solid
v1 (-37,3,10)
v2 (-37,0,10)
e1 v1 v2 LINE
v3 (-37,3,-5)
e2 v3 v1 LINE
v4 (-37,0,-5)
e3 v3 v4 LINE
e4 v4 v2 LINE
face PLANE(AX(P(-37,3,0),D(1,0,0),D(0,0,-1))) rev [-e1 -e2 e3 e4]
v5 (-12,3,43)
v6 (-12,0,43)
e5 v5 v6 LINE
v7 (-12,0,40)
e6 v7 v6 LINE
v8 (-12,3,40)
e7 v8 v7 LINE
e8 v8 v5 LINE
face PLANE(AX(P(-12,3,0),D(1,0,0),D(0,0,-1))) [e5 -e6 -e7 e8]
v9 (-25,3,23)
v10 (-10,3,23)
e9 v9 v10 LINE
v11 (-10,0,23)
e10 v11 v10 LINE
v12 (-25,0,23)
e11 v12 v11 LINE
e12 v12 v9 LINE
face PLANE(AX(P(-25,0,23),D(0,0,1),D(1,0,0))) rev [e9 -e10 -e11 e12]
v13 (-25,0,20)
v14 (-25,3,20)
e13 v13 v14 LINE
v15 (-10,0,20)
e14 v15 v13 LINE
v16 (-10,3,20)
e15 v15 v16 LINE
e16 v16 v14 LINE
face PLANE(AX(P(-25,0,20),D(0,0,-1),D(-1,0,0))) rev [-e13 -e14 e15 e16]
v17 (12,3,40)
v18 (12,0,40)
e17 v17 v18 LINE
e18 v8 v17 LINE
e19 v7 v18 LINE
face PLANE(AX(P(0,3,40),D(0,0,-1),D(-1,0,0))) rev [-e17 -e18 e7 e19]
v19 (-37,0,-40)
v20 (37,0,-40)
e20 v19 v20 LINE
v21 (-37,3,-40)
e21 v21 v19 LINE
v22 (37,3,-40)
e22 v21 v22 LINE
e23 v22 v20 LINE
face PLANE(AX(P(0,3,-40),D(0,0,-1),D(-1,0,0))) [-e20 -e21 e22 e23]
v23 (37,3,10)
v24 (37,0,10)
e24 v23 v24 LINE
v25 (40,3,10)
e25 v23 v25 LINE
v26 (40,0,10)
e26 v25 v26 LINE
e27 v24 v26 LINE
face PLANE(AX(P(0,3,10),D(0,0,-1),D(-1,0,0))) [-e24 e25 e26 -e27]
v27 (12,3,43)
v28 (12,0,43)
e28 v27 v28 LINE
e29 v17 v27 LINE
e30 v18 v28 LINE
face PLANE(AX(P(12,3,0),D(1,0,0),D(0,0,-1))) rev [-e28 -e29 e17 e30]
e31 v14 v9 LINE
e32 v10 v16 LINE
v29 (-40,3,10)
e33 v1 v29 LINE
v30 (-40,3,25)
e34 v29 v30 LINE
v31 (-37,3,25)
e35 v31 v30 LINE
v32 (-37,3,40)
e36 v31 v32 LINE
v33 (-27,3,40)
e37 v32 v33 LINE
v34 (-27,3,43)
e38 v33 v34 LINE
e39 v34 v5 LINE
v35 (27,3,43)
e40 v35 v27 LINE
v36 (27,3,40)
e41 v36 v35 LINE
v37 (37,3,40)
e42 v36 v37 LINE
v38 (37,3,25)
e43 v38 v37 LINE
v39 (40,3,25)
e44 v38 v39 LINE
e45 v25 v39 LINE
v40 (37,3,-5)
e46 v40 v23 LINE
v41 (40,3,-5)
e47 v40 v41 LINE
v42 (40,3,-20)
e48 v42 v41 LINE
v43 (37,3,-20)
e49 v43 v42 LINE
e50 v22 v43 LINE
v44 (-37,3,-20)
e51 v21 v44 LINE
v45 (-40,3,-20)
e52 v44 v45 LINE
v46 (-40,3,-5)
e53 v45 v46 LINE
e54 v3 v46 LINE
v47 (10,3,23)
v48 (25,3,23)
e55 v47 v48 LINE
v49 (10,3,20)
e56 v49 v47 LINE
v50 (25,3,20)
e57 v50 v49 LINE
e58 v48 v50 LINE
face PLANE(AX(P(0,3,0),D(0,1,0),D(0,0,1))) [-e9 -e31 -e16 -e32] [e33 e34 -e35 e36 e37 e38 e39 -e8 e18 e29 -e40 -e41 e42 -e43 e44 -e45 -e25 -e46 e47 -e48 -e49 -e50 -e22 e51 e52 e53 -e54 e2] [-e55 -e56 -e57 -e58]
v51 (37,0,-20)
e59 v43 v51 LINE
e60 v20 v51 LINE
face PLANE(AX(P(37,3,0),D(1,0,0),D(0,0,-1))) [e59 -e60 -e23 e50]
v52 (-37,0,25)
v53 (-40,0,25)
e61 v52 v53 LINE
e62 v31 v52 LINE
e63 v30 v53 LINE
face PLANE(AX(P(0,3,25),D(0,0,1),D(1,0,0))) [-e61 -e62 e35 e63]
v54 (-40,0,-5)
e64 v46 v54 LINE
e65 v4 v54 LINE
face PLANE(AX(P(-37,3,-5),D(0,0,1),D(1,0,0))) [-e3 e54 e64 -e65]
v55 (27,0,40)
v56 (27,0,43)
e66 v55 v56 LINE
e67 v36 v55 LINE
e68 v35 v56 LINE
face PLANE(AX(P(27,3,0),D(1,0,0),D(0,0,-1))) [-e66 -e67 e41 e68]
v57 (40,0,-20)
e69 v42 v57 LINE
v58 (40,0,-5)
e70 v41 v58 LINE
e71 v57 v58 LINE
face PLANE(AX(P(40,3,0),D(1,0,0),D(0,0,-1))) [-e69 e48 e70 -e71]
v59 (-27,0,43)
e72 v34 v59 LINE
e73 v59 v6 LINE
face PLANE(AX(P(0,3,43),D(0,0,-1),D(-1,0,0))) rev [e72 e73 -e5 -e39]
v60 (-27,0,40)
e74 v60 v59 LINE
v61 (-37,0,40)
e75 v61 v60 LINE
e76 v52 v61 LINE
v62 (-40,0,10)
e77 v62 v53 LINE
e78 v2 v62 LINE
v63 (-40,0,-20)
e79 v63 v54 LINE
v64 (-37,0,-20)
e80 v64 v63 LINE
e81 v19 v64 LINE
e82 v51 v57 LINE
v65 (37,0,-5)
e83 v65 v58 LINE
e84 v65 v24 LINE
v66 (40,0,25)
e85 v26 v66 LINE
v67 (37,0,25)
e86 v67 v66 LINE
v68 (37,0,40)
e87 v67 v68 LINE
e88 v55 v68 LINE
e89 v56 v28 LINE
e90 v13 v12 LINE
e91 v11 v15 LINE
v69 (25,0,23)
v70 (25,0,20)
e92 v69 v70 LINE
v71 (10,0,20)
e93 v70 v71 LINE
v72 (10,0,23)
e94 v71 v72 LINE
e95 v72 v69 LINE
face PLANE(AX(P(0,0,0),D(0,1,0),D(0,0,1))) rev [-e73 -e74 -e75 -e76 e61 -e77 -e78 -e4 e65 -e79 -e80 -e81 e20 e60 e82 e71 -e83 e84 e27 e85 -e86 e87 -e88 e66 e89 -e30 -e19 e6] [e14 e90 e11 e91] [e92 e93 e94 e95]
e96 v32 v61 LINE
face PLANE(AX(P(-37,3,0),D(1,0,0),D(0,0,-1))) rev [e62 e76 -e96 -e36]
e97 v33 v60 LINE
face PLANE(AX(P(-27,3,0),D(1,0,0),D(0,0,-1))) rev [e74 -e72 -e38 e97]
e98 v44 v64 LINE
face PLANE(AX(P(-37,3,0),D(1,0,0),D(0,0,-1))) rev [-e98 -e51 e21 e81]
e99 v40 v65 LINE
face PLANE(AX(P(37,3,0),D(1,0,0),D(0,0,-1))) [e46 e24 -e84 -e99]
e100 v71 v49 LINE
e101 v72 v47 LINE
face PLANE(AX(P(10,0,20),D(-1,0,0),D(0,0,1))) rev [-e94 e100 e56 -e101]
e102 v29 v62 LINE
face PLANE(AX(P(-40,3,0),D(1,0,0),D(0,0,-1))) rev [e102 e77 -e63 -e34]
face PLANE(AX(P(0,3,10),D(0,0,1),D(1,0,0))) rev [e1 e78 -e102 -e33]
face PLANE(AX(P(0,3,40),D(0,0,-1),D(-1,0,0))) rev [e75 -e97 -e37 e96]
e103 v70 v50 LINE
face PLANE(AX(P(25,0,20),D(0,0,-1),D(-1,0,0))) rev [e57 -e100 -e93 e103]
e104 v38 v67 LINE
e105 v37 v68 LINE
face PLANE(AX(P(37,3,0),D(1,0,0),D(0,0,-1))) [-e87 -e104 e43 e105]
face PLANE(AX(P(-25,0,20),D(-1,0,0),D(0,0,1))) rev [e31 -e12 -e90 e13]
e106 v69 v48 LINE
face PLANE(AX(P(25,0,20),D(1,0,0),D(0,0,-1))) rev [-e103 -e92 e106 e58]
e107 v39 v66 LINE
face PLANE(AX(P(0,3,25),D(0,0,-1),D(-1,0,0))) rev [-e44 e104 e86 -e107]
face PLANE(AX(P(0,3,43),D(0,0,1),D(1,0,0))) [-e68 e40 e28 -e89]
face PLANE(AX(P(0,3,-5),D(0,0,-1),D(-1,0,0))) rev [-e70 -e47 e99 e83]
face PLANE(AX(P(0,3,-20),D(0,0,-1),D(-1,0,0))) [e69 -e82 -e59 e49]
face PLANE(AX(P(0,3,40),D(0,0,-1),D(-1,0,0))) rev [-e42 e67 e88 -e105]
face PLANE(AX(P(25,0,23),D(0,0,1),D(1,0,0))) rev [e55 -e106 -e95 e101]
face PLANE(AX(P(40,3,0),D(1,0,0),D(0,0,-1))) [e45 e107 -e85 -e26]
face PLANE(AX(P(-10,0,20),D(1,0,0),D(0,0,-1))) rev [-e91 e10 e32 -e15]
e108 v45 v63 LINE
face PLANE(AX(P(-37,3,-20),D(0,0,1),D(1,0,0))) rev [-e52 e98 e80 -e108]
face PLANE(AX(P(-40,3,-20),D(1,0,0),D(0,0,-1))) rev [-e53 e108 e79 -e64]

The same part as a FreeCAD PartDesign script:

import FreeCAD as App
import Part
import Sketcher
from FreeCAD import Vector
Q = App.Units.Quantity


def add_polygon(sketch, points):
    """Adds a closed chain of lines whose ends are joined by coincident constraints."""
    first, n = sketch.GeometryCount, len(points)
    for a, b in zip(points, points[1:] + points[:1]):
        sketch.addGeometry(Part.LineSegment(App.Vector(*a, 0), App.Vector(*b, 0)), False)
    for i in range(n):
        sketch.addConstraint(Sketcher.Constraint("Coincident", first + i, 2, first + (i + 1) % n, 1))

doc = App.newDocument("Part")
body = doc.addObject("PartDesign::Body", "Body")

# Sketch on XZ plane
sketch1 = body.newObject("Sketcher::SketchObject", "Sketch")
sketch1.AttachmentSupport = (doc.getObject("XZ_Plane"), [""])
sketch1.MapMode = "FlatFace"
add_polygon(sketch1, [(-37, 25), (-37, 40), (-27, 40), (-27, 43), (-12, 43), (-12, 40), (12, 40), (12, 43), (27, 43), (27, 40), (37, 40), (37, 25), (40, 25), (40, 10), (37, 10), (37, -5), (40, -5), (40, -20), (37, -20), (37, -40), (-37, -40), (-37, -20), (-40, -20), (-40, -5), (-37, -5), (-37, 10), (-40, 10), (-40, 25)])  # lines 0-27
sketch1.addConstraint([
    Sketcher.Constraint("Vertical", 0),
    Sketcher.Constraint("Horizontal", 1),
    Sketcher.Constraint("Vertical", 2),
    Sketcher.Constraint("Horizontal", 3),
    Sketcher.Constraint("Vertical", 4),
    Sketcher.Constraint("Horizontal", 5),
    Sketcher.Constraint("Vertical", 6),
    Sketcher.Constraint("Horizontal", 7),
    Sketcher.Constraint("Vertical", 8),
    Sketcher.Constraint("Horizontal", 9),
    Sketcher.Constraint("Vertical", 10),
    Sketcher.Constraint("Horizontal", 11),
    Sketcher.Constraint("Vertical", 12),
    Sketcher.Constraint("Horizontal", 13),
    Sketcher.Constraint("Vertical", 14),
    Sketcher.Constraint("Horizontal", 15),
    Sketcher.Constraint("Vertical", 16),
    Sketcher.Constraint("Horizontal", 17),
    Sketcher.Constraint("Vertical", 18),
    Sketcher.Constraint("Horizontal", 19),
    Sketcher.Constraint("Vertical", 20),
    Sketcher.Constraint("Horizontal", 21),
    Sketcher.Constraint("Vertical", 22),
    Sketcher.Constraint("Horizontal", 23),
    Sketcher.Constraint("Vertical", 24),
    Sketcher.Constraint("Horizontal", 25),
    Sketcher.Constraint("Vertical", 26),
    Sketcher.Constraint("Horizontal", 27),
    Sketcher.Constraint("Symmetric", 0, 2, 18, 2, -1, 1),
    Sketcher.Constraint("Symmetric", 9, 2, 19, 2, -1, 1),
    Sketcher.Constraint("Symmetric", 3, 2, 6, 2, -2),
    Sketcher.Constraint("Symmetric", 17, 2, 20, 2, -2),
    Sketcher.Constraint("Symmetric", 15, 2, 22, 2, -2),
    Sketcher.Constraint("Symmetric", 13, 2, 24, 2, -2),
    Sketcher.Constraint("Symmetric", 11, 2, 26, 2, -2),
    Sketcher.Constraint("Horizontal", 1, 2, 4, 2),
    Sketcher.Constraint("Vertical", 10, 2, 13, 2),
    Sketcher.Constraint("Vertical", 12, 2, 15, 2),
    Sketcher.Constraint("Equal", 3, 7),
    Sketcher.Constraint("Equal", 7, 0),
    Sketcher.Constraint("Equal", 27, 2),
    Sketcher.Constraint("Equal", 10, 12),
    Sketcher.Constraint("Equal", 12, 14),
    Sketcher.Constraint("Equal", 14, 16),
    Sketcher.Constraint("DistanceX", 1, 1, 1, 2, Q("10 mm")),
    Sketcher.Constraint("DistanceX", 3, 1, 3, 2, Q("15 mm")),
    Sketcher.Constraint("DistanceX", 5, 1, 5, 2, Q("24 mm")),
    Sketcher.Constraint("DistanceX", 11, 1, 11, 2, Q("3 mm")),
    Sketcher.Constraint("DistanceY", 18, 2, 18, 1, Q("20 mm")),
])
pad1 = body.newObject("PartDesign::Pad", "Pad")
pad1.Profile = sketch1
pad1.Length = 3
pad1.Reversed = True

# Sketch on XZ plane
sketch2 = body.newObject("Sketcher::SketchObject", "Sketch001")
sketch2.AttachmentSupport = (doc.getObject("XZ_Plane"), [""])
sketch2.MapMode = "FlatFace"
sketch2.AttachmentOffset = App.Placement(Vector(0, 0, -3), App.Rotation())
add_polygon(sketch2, [(-25, 20), (-25, 23), (-10, 23), (-10, 20)])  # lines 0-3
add_polygon(sketch2, [(10, 20), (10, 23), (25, 23), (25, 20)])  # lines 4-7
sketch2.addConstraint([
    Sketcher.Constraint("Vertical", 0),
    Sketcher.Constraint("Horizontal", 1),
    Sketcher.Constraint("Vertical", 2),
    Sketcher.Constraint("Horizontal", 3),
    Sketcher.Constraint("Vertical", 4),
    Sketcher.Constraint("Horizontal", 5),
    Sketcher.Constraint("Vertical", 6),
    Sketcher.Constraint("Horizontal", 7),
    Sketcher.Constraint("Symmetric", 1, 2, 4, 2, -2),
    Sketcher.Constraint("Symmetric", 3, 2, 6, 2, -2),
    Sketcher.Constraint("DistanceX", 1, 1, 1, 2, Q("15 mm")),
    Sketcher.Constraint("DistanceY", 0, 1, 0, 2, Q("3 mm")),
    Sketcher.Constraint("DistanceX", 0, 2, -1, 1, Q("25 mm")),
    Sketcher.Constraint("DistanceY", -1, 1, 0, 2, Q("23 mm")),
])
pocket1 = body.newObject("PartDesign::Pocket", "Pocket")
pocket1.Profile = sketch2
pocket1.Length = 3
pocket1.Reversed = True

doc.recompute()
